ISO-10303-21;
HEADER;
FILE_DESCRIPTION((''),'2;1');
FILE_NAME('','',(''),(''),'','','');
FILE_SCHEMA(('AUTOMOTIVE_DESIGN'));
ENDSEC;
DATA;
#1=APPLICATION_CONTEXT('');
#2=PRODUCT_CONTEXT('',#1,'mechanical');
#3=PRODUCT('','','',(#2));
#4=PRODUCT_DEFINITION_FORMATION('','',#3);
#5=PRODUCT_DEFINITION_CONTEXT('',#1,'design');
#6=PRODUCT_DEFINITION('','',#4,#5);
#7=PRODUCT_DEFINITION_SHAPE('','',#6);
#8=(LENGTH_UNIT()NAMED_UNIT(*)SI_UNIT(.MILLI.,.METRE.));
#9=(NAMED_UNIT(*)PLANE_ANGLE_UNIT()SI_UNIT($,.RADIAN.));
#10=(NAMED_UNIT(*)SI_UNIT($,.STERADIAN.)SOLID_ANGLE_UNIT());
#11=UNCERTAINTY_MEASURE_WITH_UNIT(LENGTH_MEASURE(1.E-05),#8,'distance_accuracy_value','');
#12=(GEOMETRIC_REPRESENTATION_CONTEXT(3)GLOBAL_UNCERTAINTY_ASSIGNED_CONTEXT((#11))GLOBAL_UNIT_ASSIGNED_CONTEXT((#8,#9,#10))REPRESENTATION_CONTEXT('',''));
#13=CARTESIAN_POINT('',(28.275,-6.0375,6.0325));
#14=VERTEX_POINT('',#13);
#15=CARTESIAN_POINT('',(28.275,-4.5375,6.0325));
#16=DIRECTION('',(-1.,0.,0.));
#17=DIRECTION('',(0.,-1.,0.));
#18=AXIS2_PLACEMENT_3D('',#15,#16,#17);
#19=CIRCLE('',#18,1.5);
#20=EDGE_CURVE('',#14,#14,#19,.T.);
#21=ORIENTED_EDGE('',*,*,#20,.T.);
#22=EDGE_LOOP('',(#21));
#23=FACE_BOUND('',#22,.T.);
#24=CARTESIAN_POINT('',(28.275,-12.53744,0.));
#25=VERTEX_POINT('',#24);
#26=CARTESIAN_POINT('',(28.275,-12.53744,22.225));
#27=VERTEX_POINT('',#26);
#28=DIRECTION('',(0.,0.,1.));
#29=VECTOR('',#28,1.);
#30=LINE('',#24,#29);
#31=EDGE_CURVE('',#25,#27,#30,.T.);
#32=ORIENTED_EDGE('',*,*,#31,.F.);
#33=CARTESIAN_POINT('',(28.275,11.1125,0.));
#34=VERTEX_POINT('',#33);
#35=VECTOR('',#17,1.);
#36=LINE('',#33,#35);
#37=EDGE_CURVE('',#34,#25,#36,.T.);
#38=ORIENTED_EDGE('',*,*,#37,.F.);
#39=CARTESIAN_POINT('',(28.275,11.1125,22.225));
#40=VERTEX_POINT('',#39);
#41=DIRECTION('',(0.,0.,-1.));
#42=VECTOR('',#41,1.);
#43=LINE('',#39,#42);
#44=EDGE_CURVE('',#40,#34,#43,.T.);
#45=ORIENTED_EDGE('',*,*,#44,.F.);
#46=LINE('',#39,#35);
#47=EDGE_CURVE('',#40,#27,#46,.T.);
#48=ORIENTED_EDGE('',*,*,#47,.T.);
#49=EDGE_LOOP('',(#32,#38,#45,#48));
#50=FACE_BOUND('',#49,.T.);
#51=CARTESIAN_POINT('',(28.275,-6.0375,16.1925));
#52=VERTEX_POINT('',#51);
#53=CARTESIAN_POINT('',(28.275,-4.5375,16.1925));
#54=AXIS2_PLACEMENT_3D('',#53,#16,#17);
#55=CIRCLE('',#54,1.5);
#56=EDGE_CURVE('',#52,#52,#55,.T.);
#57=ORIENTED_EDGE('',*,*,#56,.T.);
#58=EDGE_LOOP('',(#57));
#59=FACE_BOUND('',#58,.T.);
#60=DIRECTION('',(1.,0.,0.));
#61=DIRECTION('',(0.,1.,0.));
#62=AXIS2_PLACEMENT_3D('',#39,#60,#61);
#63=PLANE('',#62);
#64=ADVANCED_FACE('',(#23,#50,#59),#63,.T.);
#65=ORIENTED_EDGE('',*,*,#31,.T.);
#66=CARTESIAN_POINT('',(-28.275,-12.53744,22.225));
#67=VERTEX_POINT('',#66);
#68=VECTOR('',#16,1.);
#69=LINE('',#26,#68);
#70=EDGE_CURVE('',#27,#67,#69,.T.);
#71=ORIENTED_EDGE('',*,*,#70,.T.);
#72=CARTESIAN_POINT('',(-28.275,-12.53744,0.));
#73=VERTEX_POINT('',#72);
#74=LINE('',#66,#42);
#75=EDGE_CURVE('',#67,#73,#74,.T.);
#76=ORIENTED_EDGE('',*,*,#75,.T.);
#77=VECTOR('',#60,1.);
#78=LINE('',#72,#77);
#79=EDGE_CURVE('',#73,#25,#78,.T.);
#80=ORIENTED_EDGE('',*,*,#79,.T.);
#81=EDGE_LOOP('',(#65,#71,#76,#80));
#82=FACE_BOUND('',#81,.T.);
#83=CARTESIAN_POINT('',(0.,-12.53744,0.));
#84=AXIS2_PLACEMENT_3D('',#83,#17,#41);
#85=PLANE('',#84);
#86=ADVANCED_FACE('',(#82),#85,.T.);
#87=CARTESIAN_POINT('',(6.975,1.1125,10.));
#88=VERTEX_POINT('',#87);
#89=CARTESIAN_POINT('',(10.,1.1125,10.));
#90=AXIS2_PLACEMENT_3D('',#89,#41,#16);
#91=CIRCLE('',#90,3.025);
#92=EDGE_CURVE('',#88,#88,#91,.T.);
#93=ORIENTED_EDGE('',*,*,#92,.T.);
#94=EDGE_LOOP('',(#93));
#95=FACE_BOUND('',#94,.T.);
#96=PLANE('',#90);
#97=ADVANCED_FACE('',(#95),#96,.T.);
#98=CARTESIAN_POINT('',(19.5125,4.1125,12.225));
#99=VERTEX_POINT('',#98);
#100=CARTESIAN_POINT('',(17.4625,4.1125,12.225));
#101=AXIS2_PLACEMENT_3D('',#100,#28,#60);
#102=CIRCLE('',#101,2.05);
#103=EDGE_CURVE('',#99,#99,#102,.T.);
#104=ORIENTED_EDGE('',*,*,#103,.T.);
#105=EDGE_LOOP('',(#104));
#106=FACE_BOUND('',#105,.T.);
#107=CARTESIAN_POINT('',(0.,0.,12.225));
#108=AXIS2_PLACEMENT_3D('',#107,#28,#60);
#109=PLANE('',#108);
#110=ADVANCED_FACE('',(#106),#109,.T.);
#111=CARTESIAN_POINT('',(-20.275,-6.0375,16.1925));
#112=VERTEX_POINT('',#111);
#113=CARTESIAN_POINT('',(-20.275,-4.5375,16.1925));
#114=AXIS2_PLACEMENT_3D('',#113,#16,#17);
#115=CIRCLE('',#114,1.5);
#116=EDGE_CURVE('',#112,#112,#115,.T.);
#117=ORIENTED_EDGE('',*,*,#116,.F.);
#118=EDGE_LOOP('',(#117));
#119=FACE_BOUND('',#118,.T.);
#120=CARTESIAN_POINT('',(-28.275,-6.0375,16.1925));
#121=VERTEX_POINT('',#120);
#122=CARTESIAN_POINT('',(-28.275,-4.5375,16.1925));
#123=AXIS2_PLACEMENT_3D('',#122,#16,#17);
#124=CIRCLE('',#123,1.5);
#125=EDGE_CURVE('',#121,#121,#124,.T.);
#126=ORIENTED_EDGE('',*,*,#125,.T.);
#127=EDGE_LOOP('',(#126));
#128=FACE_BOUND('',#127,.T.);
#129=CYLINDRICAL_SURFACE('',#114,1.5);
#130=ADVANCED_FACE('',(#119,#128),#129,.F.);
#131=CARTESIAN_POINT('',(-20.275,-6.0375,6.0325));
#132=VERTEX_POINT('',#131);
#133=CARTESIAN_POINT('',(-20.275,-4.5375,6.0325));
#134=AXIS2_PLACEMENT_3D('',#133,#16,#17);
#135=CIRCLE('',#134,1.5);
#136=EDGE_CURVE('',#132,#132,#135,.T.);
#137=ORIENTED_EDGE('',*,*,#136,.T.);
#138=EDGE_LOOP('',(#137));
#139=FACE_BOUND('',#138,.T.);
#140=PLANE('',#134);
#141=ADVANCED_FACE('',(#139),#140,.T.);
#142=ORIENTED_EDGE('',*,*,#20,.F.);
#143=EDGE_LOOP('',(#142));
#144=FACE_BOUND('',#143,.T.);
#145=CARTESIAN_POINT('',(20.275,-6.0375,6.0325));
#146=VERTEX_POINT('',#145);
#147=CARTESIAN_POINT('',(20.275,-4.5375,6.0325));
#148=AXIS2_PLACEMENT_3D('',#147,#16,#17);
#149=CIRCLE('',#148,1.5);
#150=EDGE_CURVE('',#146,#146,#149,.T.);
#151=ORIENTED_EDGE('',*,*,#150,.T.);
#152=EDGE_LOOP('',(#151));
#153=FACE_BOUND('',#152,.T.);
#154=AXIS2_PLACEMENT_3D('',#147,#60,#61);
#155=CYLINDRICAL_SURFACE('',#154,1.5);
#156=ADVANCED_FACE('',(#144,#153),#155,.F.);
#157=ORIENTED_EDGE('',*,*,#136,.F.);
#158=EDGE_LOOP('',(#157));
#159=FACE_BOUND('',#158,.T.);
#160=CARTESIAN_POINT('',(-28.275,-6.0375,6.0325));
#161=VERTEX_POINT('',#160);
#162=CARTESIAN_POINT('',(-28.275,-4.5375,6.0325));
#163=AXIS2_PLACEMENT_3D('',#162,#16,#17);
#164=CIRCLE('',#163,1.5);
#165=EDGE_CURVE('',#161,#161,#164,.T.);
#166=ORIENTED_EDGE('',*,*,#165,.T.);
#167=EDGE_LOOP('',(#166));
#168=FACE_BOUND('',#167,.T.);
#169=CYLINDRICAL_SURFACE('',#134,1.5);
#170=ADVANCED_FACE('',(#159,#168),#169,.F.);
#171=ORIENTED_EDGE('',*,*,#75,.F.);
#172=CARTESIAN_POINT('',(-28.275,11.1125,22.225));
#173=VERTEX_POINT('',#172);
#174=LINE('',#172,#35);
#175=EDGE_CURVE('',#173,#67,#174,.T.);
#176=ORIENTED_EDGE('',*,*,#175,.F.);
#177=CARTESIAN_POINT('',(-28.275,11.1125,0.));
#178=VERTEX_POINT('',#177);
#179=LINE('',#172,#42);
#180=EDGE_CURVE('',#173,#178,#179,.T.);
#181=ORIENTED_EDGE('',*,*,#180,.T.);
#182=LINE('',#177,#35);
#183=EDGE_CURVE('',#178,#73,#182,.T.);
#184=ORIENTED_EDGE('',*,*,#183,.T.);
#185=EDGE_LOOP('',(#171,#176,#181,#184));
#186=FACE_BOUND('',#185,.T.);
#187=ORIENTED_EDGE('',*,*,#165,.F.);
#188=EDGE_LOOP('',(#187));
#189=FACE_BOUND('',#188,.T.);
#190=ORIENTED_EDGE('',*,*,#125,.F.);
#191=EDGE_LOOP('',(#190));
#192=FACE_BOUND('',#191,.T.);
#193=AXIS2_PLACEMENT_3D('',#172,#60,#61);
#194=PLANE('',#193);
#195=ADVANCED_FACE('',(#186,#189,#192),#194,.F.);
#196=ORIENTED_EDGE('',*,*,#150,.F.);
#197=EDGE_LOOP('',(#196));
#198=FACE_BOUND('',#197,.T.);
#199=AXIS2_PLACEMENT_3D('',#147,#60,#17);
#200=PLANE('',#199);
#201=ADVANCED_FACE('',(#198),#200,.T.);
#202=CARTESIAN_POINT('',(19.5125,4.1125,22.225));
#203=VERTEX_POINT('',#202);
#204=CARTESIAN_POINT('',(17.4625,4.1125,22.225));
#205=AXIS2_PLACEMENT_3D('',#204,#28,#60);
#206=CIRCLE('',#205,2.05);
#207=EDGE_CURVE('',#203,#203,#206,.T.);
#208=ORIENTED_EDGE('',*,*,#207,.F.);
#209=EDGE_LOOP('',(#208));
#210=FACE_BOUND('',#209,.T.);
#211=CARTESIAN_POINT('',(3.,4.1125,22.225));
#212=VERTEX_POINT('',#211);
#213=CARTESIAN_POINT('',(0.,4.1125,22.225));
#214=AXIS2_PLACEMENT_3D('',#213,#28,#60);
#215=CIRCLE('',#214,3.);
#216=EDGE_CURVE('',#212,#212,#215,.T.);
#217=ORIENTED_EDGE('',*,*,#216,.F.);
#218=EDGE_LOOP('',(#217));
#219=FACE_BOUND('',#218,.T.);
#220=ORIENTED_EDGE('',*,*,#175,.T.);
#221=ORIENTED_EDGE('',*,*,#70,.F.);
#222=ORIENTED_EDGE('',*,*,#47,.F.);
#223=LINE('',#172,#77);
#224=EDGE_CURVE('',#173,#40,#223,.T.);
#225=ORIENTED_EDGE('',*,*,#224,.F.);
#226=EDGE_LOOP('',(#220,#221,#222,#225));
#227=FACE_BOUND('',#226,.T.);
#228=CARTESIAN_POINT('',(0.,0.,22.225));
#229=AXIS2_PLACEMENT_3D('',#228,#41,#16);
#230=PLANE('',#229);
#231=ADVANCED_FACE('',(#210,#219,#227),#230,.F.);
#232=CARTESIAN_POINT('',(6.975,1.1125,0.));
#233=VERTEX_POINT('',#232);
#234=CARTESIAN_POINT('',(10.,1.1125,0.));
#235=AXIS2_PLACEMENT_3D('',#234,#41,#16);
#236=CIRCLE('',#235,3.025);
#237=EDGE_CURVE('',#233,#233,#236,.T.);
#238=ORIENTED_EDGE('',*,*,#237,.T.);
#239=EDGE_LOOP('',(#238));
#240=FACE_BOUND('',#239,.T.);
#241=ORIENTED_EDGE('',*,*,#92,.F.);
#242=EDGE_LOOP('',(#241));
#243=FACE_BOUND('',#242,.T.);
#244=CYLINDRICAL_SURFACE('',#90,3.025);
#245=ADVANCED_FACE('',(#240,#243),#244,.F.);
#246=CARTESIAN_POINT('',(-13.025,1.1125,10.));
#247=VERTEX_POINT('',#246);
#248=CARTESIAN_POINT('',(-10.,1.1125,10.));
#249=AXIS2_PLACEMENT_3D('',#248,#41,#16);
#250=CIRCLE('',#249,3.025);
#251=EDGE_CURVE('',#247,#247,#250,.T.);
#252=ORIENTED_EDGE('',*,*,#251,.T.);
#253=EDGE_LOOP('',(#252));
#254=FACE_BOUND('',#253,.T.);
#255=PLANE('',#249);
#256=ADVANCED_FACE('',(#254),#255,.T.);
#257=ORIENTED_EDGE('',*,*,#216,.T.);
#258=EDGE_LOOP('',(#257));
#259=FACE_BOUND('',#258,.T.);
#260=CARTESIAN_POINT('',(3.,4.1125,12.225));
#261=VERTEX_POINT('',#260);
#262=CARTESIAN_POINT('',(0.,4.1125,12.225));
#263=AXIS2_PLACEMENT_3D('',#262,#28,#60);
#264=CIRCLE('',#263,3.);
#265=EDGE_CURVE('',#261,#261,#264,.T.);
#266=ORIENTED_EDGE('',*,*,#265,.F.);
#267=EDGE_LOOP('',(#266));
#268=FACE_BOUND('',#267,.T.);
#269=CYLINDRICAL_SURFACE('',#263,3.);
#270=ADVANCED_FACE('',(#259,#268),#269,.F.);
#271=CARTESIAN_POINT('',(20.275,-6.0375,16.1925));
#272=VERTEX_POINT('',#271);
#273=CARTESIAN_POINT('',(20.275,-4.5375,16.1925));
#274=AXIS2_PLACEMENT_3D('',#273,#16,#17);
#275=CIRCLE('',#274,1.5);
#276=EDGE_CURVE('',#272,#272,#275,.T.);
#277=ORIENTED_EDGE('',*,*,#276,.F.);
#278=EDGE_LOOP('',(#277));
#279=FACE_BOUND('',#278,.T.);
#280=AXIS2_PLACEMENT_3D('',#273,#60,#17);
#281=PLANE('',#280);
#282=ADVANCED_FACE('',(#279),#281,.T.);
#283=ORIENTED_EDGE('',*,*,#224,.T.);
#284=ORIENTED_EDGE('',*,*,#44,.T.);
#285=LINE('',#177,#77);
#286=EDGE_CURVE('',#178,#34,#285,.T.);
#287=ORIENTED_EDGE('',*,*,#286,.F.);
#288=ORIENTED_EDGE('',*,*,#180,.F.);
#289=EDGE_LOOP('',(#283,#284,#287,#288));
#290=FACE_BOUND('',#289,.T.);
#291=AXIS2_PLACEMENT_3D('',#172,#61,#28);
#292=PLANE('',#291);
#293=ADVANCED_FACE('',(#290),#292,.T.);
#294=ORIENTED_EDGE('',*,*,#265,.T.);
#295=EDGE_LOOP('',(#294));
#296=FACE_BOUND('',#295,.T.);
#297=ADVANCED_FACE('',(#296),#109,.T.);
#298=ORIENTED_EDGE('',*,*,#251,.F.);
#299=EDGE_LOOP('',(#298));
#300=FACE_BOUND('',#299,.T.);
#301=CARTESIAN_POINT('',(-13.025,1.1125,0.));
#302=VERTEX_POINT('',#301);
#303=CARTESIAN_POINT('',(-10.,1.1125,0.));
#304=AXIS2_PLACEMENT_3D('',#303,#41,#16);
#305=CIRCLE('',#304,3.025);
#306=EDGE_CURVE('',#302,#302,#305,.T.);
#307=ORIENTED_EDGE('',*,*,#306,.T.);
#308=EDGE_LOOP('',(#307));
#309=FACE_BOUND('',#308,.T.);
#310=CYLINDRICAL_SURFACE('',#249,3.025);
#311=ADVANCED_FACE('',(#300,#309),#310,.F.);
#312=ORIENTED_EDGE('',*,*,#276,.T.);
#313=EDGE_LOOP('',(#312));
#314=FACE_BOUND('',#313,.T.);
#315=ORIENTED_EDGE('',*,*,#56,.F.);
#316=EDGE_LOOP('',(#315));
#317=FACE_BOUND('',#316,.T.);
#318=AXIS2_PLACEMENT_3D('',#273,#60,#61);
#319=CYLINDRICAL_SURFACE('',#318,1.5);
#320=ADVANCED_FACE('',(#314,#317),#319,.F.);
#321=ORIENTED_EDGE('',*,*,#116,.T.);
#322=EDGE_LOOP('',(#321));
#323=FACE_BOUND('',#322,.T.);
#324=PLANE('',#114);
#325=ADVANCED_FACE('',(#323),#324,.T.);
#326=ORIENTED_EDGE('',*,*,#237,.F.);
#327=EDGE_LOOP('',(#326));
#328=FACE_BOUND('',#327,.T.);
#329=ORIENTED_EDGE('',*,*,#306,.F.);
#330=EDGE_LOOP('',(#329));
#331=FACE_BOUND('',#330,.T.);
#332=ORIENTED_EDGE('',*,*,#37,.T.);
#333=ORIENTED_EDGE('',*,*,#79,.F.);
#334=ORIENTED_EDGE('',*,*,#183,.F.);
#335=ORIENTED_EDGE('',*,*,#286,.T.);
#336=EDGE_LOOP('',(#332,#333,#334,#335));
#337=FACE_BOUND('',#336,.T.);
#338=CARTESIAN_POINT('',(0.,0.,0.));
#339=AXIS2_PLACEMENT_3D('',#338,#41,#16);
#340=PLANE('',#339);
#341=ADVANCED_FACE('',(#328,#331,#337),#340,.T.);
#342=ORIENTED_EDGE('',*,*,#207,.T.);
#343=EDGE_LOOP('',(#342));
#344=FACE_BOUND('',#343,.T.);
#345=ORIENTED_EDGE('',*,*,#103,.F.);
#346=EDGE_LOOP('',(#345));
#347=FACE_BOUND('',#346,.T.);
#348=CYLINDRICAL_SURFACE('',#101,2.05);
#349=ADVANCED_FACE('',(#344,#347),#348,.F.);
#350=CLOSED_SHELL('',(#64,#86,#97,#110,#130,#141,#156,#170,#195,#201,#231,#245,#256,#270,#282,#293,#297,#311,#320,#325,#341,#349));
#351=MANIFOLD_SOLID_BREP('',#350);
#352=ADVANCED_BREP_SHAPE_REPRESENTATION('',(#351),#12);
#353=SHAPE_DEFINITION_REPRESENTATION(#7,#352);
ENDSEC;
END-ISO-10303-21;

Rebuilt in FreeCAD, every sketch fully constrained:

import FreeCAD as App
import Part
import Sketcher
from FreeCAD import Vector


def add_polygon(sketch, points):
    """Adds a closed chain of lines whose ends are joined by coincident constraints."""
    first, n = sketch.GeometryCount, len(points)
    for a, b in zip(points, points[1:] + points[:1]):
        sketch.addGeometry(Part.LineSegment(App.Vector(*a, 0), App.Vector(*b, 0)), False)
    for i in range(n):
        sketch.addConstraint(Sketcher.Constraint("Coincident", first + i, 2, first + (i + 1) % n, 1))

doc = App.newDocument("Part")
body = doc.addObject("PartDesign::Body", "Body")

sketch1 = body.newObject("Sketcher::SketchObject", "Sketch")
sketch1.AttachmentSupport = (doc.getObject("XY_Plane"), [""])
sketch1.MapMode = "FlatFace"
add_polygon(sketch1, [(-28, 11), (-28, -11), (28, -11), (28, 11)])
sketch1.addConstraint(Sketcher.Constraint("Vertical", 0))
sketch1.addConstraint(Sketcher.Constraint("Horizontal", 1))
sketch1.addConstraint(Sketcher.Constraint("Vertical", 2))
sketch1.addConstraint(Sketcher.Constraint("Horizontal", 3))
sketch1.addConstraint(Sketcher.Constraint("Symmetric", 0, 2, 2, 2, -1, 1))
sketch1.addConstraint(Sketcher.Constraint("DistanceX", 1, 1, 1, 2, 56.55))
sketch1.addConstraint(Sketcher.Constraint("DistanceY", 0, 2, 0, 1, 22.225))
pad1 = body.newObject("PartDesign::Pad", "Pad")
pad1.Profile = sketch1
pad1.Length = 22.225

sketch2 = body.newObject("Sketcher::SketchObject", "Sketch001")
sketch2.AttachmentSupport = (doc.getObject("XY_Plane"), [""])
sketch2.MapMode = "FlatFace"
sketch2.AttachmentOffset = App.Placement(Vector(0, 0, 22.225), App.Rotation())
sketch2.addGeometry(Part.Circle(Vector(17.5, 4.1, 0), Vector(0, 0, 1), 2), False)
sketch2.addGeometry(Part.Circle(Vector(0, 4.1, 0), Vector(0, 0, 1), 3), False)
sketch2.addConstraint(Sketcher.Constraint("PointOnObject", 1, 3, -2))
sketch2.addConstraint(Sketcher.Constraint("Horizontal", 0, 3, 1, 3))
sketch2.addConstraint(Sketcher.Constraint("Diameter", 1, 6.0))
sketch2.addConstraint(Sketcher.Constraint("Diameter", 0, 4.1))
sketch2.addConstraint(Sketcher.Constraint("DistanceX", -1, 1, 0, 3, 17.4625))
sketch2.addConstraint(Sketcher.Constraint("DistanceY", -1, 1, 0, 3, 4.1125))
pocket1 = body.newObject("PartDesign::Pocket", "Pocket")
pocket1.Profile = sketch2
pocket1.Length = 10

sketch3 = body.newObject("Sketcher::SketchObject", "Sketch002")
sketch3.AttachmentSupport = (doc.getObject("YZ_Plane"), [""])
sketch3.MapMode = "FlatFace"
sketch3.AttachmentOffset = App.Placement(Vector(0, 0, -28.275), App.Rotation())
sketch3.addGeometry(Part.Circle(Vector(-4.5, 16.2, 0), Vector(0, 0, 1), 1.5), False)
sketch3.addGeometry(Part.Circle(Vector(-4.5, 6, 0), Vector(0, 0, 1), 1.5), False)
sketch3.addConstraint(Sketcher.Constraint("Equal", 0, 1))
sketch3.addConstraint(Sketcher.Constraint("Vertical", 0, 3, 1, 3))
sketch3.addConstraint(Sketcher.Constraint("Diameter", 0, 3.0))
sketch3.addConstraint(Sketcher.Constraint("DistanceY", 1, 3, 0, 3, 10.16))
sketch3.addConstraint(Sketcher.Constraint("DistanceX", 0, 3, -1, 1, 4.5375))
sketch3.addConstraint(Sketcher.Constraint("DistanceY", -1, 1, 0, 3, 16.1925))
pocket2 = body.newObject("PartDesign::Pocket", "Pocket001")
pocket2.Profile = sketch3
pocket2.Length = 8
pocket2.Reversed = True

sketch4 = body.newObject("Sketcher::SketchObject", "Sketch003")
sketch4.AttachmentSupport = (doc.getObject("XZ_Plane"), [""])
sketch4.MapMode = "FlatFace"
sketch4.AttachmentOffset = App.Placement(Vector(0, 0, 11.1125), App.Rotation())
add_polygon(sketch4, [(-28, 22), (-28, 0), (28, 0), (28, 22)])
sketch4.addConstraint(Sketcher.Constraint("Vertical", 0))
sketch4.addConstraint(Sketcher.Constraint("Horizontal", 1))
sketch4.addConstraint(Sketcher.Constraint("Vertical", 2))
sketch4.addConstraint(Sketcher.Constraint("Horizontal", 3))
sketch4.addConstraint(Sketcher.Constraint("Symmetric", 0, 2, 1, 2, -1, 1))
sketch4.addConstraint(Sketcher.Constraint("DistanceX", 1, 1, 1, 2, 56.55))
sketch4.addConstraint(Sketcher.Constraint("DistanceY", 0, 2, 0, 1, 22.225))
pad2 = body.newObject("PartDesign::Pad", "Pad001")
pad2.Profile = sketch4
pad2.Length = 1.42494
doc.recompute()

mirrored = body.newObject("PartDesign::Mirrored", "Mirrored")
mirrored.Originals = [pocket2]
mirrored.MirrorPlane = (doc.getObject("YZ_Plane"), [""])
body.Tip = mirrored

sketch5 = body.newObject("Sketcher::SketchObject", "Sketch004")
sketch5.AttachmentSupport = (doc.getObject("XY_Plane"), [""])
sketch5.MapMode = "FlatFace"
sketch5.addGeometry(Part.Circle(Vector(10, 1.1, 0), Vector(0, 0, 1), 3), False)
sketch5.addGeometry(Part.Circle(Vector(-10, 1.1, 0), Vector(0, 0, 1), 3), False)
sketch5.addConstraint(Sketcher.Constraint("Equal", 0, 1))
sketch5.addConstraint(Sketcher.Constraint("Symmetric", 0, 3, 1, 3, -2))
sketch5.addConstraint(Sketcher.Constraint("Diameter", 0, 6.05))
sketch5.addConstraint(Sketcher.Constraint("DistanceX", -1, 1, 0, 3, 10.0))
sketch5.addConstraint(Sketcher.Constraint("DistanceY", -1, 1, 0, 3, 1.1125))
pocket3 = body.newObject("PartDesign::Pocket", "Pocket002")
pocket3.Profile = sketch5
pocket3.Length = 10
pocket3.Reversed = True

doc.recompute()
